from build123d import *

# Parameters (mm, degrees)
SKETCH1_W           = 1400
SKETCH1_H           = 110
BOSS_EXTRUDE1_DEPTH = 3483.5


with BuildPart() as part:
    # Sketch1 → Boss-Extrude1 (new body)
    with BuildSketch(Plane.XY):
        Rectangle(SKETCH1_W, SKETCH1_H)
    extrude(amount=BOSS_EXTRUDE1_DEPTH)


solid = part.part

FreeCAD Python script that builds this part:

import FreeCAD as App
import Part
import Sketcher

V = App.Vector

doc = App.newDocument("Part")
params = doc.addObject("Spreadsheet::Sheet", "Params")
for row, (alias, value) in enumerate([
    ("sketch1_width", "1400 mm"),
    ("sketch1_height", "110 mm"),
    ("pad1_length", "3483.5 mm"),
], start=1):
    params.set(f"A{row}", alias)
    params.set(f"B{row}", "=" + value)
    params.setAlias(f"B{row}", alias)

body = doc.addObject("PartDesign::Body", "Body")

# Sketch on XY plane
sketch1 = body.newObject("Sketcher::SketchObject", "Sketch")
sketch1.AttachmentSupport = (doc.getObject("XY_Plane"), [""])
sketch1.MapMode = "FlatFace"
sketch1.addGeometry([
    Part.LineSegment(V(-700, 55, 0), V(-700, -55, 0)),
    Part.LineSegment(V(-700, -55, 0), V(700, -55, 0)),
    Part.LineSegment(V(700, -55, 0), V(700, 55, 0)),
    Part.LineSegment(V(700, 55, 0), V(-700, 55, 0)),
], False)
sketch1.addConstraint([
    Sketcher.Constraint("Coincident", 0, 2, 1, 1),
    Sketcher.Constraint("Coincident", 1, 2, 2, 1),
    Sketcher.Constraint("Coincident", 2, 2, 3, 1),
    Sketcher.Constraint("Coincident", 3, 2, 0, 1),
    Sketcher.Constraint("Vertical", 0),
    Sketcher.Constraint("Horizontal", 1),
    Sketcher.Constraint("Vertical", 2),
    Sketcher.Constraint("Horizontal", 3),
    Sketcher.Constraint("Symmetric", 0, 2, 2, 2, -1, 1),
    Sketcher.Constraint("DistanceX", 1, 1, 1, 2, 1400.0),
    Sketcher.Constraint("DistanceY", 0, 2, 0, 1, 110.0),
])
sketch1.setExpression("Constraints[9]", "Params.sketch1_width")
sketch1.setExpression("Constraints[10]", "Params.sketch1_height")
pad1 = body.newObject("PartDesign::Pad", "Pad")
pad1.Profile = sketch1
pad1.setExpression("Length", "Params.pad1_length")

doc.recompute()
